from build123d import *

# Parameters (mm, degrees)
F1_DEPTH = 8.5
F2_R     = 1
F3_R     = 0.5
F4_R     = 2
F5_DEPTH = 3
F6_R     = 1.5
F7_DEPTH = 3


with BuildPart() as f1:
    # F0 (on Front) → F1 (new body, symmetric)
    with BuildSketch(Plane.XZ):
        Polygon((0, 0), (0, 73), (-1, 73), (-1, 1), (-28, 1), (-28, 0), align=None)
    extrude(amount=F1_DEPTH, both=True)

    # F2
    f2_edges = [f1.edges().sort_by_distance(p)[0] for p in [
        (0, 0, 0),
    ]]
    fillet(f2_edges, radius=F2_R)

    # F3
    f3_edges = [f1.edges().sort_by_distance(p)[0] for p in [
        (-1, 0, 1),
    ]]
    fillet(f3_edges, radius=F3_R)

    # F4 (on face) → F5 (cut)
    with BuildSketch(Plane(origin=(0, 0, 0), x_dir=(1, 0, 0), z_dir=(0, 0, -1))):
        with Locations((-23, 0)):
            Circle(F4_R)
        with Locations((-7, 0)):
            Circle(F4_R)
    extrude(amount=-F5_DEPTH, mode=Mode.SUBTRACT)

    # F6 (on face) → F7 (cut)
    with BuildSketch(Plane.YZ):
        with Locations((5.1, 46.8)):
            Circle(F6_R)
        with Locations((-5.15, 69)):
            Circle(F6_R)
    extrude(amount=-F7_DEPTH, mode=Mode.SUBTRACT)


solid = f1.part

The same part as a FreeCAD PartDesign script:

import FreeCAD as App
import Part
import Sketcher
from FreeCAD import Vector


def edges_at(feature, points):
    """Names of the edges that pass closest to the given points."""
    edges = feature.Shape.Edges
    near = lambda p: min(range(len(edges)), key=lambda i: edges[i].distToShape(Part.Vertex(*p))[0])
    return sorted({f"Edge{near(p) + 1}" for p in points})

doc = App.newDocument("Part")
body = doc.addObject("PartDesign::Body", "Body")

sketch1 = doc.addObject("Sketcher::SketchObject", "Sketch")
body.addObject(sketch1)
sketch1.AttachmentSupport = (doc.XZ_Plane, [""])
sketch1.MapMode = "FlatFace"
sketch1.addGeometry(Part.LineSegment(Vector(0, 0, 0), Vector(0, 73, 0)), False)
sketch1.addGeometry(Part.LineSegment(Vector(0, 73, 0), Vector(-1, 73, 0)), False)
sketch1.addGeometry(Part.LineSegment(Vector(-1, 73, 0), Vector(-1, 1, 0)), False)
sketch1.addGeometry(Part.LineSegment(Vector(-1, 1, 0), Vector(-28, 1, 0)), False)
sketch1.addGeometry(Part.LineSegment(Vector(-28, 1, 0), Vector(-28, 0, 0)), False)
sketch1.addGeometry(Part.LineSegment(Vector(-28, 0, 0), Vector(0, 0, 0)), False)
sketch1.addConstraint(Sketcher.Constraint("Coincident", 0, 2, 1, 1))
sketch1.addConstraint(Sketcher.Constraint("Coincident", 1, 2, 2, 1))
sketch1.addConstraint(Sketcher.Constraint("Coincident", 2, 2, 3, 1))
sketch1.addConstraint(Sketcher.Constraint("Coincident", 3, 2, 4, 1))
sketch1.addConstraint(Sketcher.Constraint("Coincident", 4, 2, 5, 1))
sketch1.addConstraint(Sketcher.Constraint("Coincident", 5, 2, 0, 1))
sketch1.addConstraint(Sketcher.Constraint("Vertical", 0))
sketch1.addConstraint(Sketcher.Constraint("Horizontal", 1))
sketch1.addConstraint(Sketcher.Constraint("Vertical", 2))
sketch1.addConstraint(Sketcher.Constraint("Horizontal", 3))
sketch1.addConstraint(Sketcher.Constraint("Vertical", 4))
sketch1.addConstraint(Sketcher.Constraint("Horizontal", 5))
sketch1.addConstraint(Sketcher.Constraint("Coincident", 5, 2, -1, 1))
sketch1.addConstraint(Sketcher.Constraint("Equal", 1, 4))
sketch1.addConstraint(Sketcher.Constraint("DistanceX", 1, 2, 1, 1, 1.0))
sketch1.addConstraint(Sketcher.Constraint("DistanceX", 3, 2, 3, 1, 27.0))
sketch1.addConstraint(Sketcher.Constraint("DistanceY", 0, 1, 0, 2, 73.0))
pad1 = doc.addObject("PartDesign::Pad", "Pad")
body.addObject(pad1)
pad1.Profile = sketch1
pad1.Length = 17
pad1.Midplane = True
doc.recompute()

fillet = doc.addObject("PartDesign::Fillet", "Fillet")
body.addObject(fillet)
fillet.Base = (pad1, edges_at(pad1, [(0, 0, 0)]))
fillet.Radius = 1
doc.recompute()

fillet2 = doc.addObject("PartDesign::Fillet", "Fillet001")
body.addObject(fillet2)
fillet2.Base = (fillet, edges_at(fillet, [(-1, 0, 1)]))
fillet2.Radius = 0.5

sketch2 = doc.addObject("Sketcher::SketchObject", "Sketch001")
body.addObject(sketch2)
sketch2.AttachmentSupport = (doc.XY_Plane, [""])
sketch2.MapMode = "FlatFace"
sketch2.addGeometry(Part.Circle(Vector(-23, 0, 0), Vector(0, 0, 1), 2), False)
sketch2.addGeometry(Part.Circle(Vector(-7, 0, 0), Vector(0, 0, 1), 2), False)
sketch2.addConstraint(Sketcher.Constraint("Equal", 0, 1))
sketch2.addConstraint(Sketcher.Constraint("PointOnObject", 0, 3, -1))
sketch2.addConstraint(Sketcher.Constraint("PointOnObject", 1, 3, -1))
sketch2.addConstraint(Sketcher.Constraint("Diameter", 0, 4.0))
sketch2.addConstraint(Sketcher.Constraint("DistanceX", 0, 3, -1, 1, 23.0))
sketch2.addConstraint(Sketcher.Constraint("DistanceX", 1, 3, -1, 1, 7.0))
pocket1 = doc.addObject("PartDesign::Pocket", "Pocket")
body.addObject(pocket1)
pocket1.Profile = sketch2
pocket1.Length = 3
pocket1.Reversed = True

sketch3 = doc.addObject("Sketcher::SketchObject", "Sketch002")
body.addObject(sketch3)
sketch3.AttachmentSupport = (doc.YZ_Plane, [""])
sketch3.MapMode = "FlatFace"
sketch3.addGeometry(Part.Circle(Vector(5.1, 46.8, 0), Vector(0, 0, 1), 1.5), False)
sketch3.addGeometry(Part.Circle(Vector(-5.2, 69, 0), Vector(0, 0, 1), 1.5), False)
sketch3.addConstraint(Sketcher.Constraint("Equal", 0, 1))
sketch3.addConstraint(Sketcher.Constraint("Diameter", 0, 3.0))
sketch3.addConstraint(Sketcher.Constraint("DistanceY", -1, 1, 1, 3, 69.0))
sketch3.addConstraint(Sketcher.Constraint("DistanceX", -1, 1, 0, 3, 5.1))
sketch3.addConstraint(Sketcher.Constraint("DistanceY", -1, 1, 0, 3, 46.8))
sketch3.addConstraint(Sketcher.Constraint("DistanceX", 1, 3, -1, 1, 5.15))
pocket2 = doc.addObject("PartDesign::Pocket", "Pocket001")
body.addObject(pocket2)
pocket2.Profile = sketch3
pocket2.Length = 3

doc.recompute()
